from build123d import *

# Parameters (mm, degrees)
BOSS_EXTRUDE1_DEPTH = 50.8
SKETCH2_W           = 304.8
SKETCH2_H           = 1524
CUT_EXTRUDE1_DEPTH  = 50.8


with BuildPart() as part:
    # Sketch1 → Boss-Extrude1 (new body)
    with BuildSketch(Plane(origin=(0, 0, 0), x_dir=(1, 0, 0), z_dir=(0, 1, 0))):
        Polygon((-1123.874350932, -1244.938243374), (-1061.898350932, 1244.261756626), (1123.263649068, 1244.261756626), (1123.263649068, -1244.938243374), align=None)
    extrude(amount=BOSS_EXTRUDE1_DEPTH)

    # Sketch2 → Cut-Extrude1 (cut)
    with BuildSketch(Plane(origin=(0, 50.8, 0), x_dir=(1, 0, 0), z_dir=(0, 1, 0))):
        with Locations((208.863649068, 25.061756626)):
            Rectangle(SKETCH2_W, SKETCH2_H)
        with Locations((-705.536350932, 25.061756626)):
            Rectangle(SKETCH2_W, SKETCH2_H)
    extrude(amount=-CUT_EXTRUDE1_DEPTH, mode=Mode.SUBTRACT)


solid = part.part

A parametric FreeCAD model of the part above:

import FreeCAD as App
import Part
import Sketcher
Q = App.Units.Quantity


def add_polygon(sketch, points):
    """Adds a closed chain of lines whose ends are joined by coincident constraints."""
    first, n = sketch.GeometryCount, len(points)
    for a, b in zip(points, points[1:] + points[:1]):
        sketch.addGeometry(Part.LineSegment(App.Vector(*a, 0), App.Vector(*b, 0)), False)
    for i in range(n):
        sketch.addConstraint(Sketcher.Constraint("Coincident", first + i, 2, first + (i + 1) % n, 1))

doc = App.newDocument("Part")
body = doc.addObject("PartDesign::Body", "Body")

# Sketch on XZ plane
sketch1 = body.newObject("Sketcher::SketchObject", "Sketch")
sketch1.AttachmentSupport = (doc.getObject("XZ_Plane"), [""])
sketch1.MapMode = "FlatFace"
add_polygon(sketch1, [(-1062, -1244), (-1124, 1245), (1123, 1245), (1123, -1244)])  # lines 0-3
sketch1.addConstraint([
    Sketcher.Constraint("Horizontal", 1),
    Sketcher.Constraint("Vertical", 2),
    Sketcher.Constraint("Horizontal", 3),
    Sketcher.Constraint("DistanceY", 2, 2, 2, 1, Q("98 in")),
    Sketcher.Constraint("DistanceX", 1, 1, 1, 2, Q("88.47 in")),
    Sketcher.Constraint("DistanceX", 3, 2, 3, 1, Q("86.03 in")),
    Sketcher.Constraint("DistanceX", 0, 2, -1, 1, 1123.874351),
    Sketcher.Constraint("DistanceY", -1, 1, 0, 2, 1244.938243),
])
pad1 = body.newObject("PartDesign::Pad", "Pad")
pad1.Profile = sketch1
pad1.Length = Q("2 in")
pad1.Reversed = True

# Sketch on XZ plane
sketch2 = body.newObject("Sketcher::SketchObject", "Sketch001")
sketch2.AttachmentSupport = (doc.getObject("XZ_Plane"), [""])
sketch2.MapMode = "FlatFace"
sketch2.AttachmentOffset = App.Placement(App.Vector(0, 0, -2 * 25.4), App.Rotation())
add_polygon(sketch2, [(56, -787), (56, 737), (361, 737), (361, -787)])  # lines 0-3
add_polygon(sketch2, [(-858, -787), (-858, 737), (-553, 737), (-553, -787)])  # lines 4-7
sketch2.addConstraint([
    Sketcher.Constraint("Vertical", 0),
    Sketcher.Constraint("Horizontal", 1),
    Sketcher.Constraint("Vertical", 2),
    Sketcher.Constraint("Horizontal", 3),
    Sketcher.Constraint("Vertical", 4),
    Sketcher.Constraint("Horizontal", 5),
    Sketcher.Constraint("Vertical", 6),
    Sketcher.Constraint("Horizontal", 7),
    Sketcher.Constraint("Horizontal", 1, 2, 4, 2),
    Sketcher.Constraint("Horizontal", 3, 2, 6, 2),
    Sketcher.Constraint("Equal", 3, 5),
    Sketcher.Constraint("DistanceX", 1, 1, 1, 2, Q("12 in")),
    Sketcher.Constraint("DistanceY", 0, 1, 0, 2, Q("60 in")),
    Sketcher.Constraint("DistanceX", 4, 2, 0, 2, Q("36 in")),
    Sketcher.Constraint("DistanceX", -1, 1, 0, 2, 56.463649),
    Sketcher.Constraint("DistanceY", -1, 1, 0, 2, 736.938243),
])
pocket1 = body.newObject("PartDesign::Pocket", "Pocket")
pocket1.Profile = sketch2
pocket1.Length = Q("2 in")
pocket1.Reversed = True

doc.recompute()
